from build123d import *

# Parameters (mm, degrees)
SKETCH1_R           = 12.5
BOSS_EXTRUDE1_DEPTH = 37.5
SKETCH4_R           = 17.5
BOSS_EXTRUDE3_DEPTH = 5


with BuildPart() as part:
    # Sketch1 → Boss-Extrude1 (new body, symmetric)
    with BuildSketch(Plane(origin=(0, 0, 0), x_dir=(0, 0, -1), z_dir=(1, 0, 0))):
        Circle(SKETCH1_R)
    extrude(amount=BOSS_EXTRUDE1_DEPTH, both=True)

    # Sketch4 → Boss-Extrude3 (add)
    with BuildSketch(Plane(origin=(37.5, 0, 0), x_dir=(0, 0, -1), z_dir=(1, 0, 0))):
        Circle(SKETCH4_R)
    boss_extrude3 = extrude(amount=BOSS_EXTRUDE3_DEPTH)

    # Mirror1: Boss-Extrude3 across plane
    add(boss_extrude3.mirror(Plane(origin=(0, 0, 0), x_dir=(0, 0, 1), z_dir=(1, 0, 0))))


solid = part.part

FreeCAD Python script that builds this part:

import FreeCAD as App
import Part
import Sketcher
from FreeCAD import Vector
Q = App.Units.Quantity

doc = App.newDocument("Part")
body = doc.addObject("PartDesign::Body", "Body")

# Sketch on YZ plane
sketch1 = body.newObject("Sketcher::SketchObject", "Sketch")
sketch1.AttachmentSupport = (doc.getObject("YZ_Plane"), [""])
sketch1.MapMode = "FlatFace"
sketch1.addGeometry(Part.Circle(Vector(0, 0, 0), Vector(0, 0, 1), 12), False)
sketch1.addConstraint([
    Sketcher.Constraint("Coincident", 0, 3, -1, 1),
    Sketcher.Constraint("Diameter", 0, Q("25 mm")),
])
pad1 = body.newObject("PartDesign::Pad", "Pad")
pad1.Profile = sketch1
pad1.Length = 75
pad1.Midplane = True

# Sketch on YZ plane
sketch2 = body.newObject("Sketcher::SketchObject", "Sketch001")
sketch2.AttachmentSupport = (doc.getObject("YZ_Plane"), [""])
sketch2.MapMode = "FlatFace"
sketch2.AttachmentOffset = App.Placement(Vector(0, 0, 37.5), App.Rotation())
sketch2.addGeometry(Part.Circle(Vector(0, 0, 0), Vector(0, 0, 1), 18), False)
sketch2.addConstraint([
    Sketcher.Constraint("Coincident", 0, 3, -1, 1),
    Sketcher.Constraint("Diameter", 0, Q("35 mm")),
])
pad2 = body.newObject("PartDesign::Pad", "Pad001")
pad2.Profile = sketch2
pad2.Length = 5
doc.recompute()

mirrored = body.newObject("PartDesign::Mirrored", "Mirrored")
mirrored.Originals = [pad2]
mirrored.MirrorPlane = (doc.getObject("YZ_Plane"), [""])
body.Tip = mirrored

doc.recompute()
